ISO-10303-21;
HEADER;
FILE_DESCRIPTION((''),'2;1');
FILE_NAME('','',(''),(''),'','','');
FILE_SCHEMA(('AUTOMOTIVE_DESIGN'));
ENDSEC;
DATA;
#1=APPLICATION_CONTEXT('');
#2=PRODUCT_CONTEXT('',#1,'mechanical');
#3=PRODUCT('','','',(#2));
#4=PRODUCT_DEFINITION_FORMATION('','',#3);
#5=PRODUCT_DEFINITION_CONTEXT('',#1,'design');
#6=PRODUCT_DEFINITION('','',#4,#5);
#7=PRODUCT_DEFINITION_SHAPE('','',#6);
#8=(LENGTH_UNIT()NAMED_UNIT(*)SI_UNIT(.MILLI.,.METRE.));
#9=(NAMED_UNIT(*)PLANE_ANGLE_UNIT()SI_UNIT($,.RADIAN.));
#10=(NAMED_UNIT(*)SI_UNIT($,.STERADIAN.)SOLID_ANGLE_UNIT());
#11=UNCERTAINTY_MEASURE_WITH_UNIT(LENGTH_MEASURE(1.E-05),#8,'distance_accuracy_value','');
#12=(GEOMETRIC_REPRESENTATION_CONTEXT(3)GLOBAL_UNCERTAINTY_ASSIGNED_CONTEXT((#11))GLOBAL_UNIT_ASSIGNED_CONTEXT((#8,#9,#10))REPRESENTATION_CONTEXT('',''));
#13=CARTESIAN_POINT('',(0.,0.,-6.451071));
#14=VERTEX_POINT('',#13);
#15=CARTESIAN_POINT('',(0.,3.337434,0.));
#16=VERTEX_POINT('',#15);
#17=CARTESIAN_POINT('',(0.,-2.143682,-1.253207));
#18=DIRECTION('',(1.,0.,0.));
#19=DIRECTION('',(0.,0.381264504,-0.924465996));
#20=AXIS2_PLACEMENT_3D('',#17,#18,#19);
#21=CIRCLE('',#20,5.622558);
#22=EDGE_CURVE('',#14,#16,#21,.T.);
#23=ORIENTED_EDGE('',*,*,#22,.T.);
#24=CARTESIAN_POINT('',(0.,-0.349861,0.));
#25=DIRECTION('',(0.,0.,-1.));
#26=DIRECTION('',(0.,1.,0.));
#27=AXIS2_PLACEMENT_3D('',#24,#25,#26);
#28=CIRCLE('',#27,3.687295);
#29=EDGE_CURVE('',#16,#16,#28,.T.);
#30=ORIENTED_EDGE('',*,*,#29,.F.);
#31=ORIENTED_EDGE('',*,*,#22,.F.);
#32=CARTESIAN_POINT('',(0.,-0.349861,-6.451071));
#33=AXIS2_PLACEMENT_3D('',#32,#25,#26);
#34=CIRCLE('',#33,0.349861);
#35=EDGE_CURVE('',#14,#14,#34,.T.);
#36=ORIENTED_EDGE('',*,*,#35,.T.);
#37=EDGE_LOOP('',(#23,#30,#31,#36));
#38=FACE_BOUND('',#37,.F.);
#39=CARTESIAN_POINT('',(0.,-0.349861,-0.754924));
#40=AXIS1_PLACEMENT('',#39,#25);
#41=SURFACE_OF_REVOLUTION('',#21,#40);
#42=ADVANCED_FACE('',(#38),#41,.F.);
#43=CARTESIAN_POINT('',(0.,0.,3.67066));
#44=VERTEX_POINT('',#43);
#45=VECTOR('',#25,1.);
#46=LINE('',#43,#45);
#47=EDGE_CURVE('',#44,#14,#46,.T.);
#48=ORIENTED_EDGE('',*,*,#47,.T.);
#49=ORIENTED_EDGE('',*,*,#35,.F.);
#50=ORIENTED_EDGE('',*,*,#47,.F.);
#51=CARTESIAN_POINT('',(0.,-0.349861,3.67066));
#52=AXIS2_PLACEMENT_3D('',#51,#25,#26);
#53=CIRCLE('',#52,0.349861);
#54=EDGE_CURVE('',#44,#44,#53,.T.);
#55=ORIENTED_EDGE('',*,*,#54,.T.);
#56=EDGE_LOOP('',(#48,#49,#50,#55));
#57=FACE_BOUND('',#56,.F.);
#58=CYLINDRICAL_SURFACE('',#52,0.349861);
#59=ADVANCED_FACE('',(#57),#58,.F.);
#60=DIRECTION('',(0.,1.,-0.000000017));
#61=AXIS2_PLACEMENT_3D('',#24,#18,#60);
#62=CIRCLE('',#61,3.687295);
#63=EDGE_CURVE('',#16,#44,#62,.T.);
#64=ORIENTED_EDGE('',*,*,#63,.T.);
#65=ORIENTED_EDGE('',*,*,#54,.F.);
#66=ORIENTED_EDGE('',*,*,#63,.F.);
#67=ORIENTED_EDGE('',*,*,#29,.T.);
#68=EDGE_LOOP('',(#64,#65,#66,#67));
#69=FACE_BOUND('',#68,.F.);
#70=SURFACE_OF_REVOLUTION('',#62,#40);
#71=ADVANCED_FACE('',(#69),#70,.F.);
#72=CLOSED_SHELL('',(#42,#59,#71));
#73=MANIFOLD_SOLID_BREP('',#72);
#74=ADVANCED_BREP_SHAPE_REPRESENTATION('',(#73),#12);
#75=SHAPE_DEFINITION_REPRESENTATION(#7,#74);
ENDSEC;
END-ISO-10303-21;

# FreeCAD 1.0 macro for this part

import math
import FreeCAD as App
import Part
import Sketcher

V = App.Vector
Q = App.Units.Quantity

doc = App.newDocument("Part")
body = doc.addObject("PartDesign::Body", "Body")

# Sketch on YZ plane
sketch1 = body.newObject("Sketcher::SketchObject", "Sketch")
sketch1.AttachmentSupport = (doc.getObject("YZ_Plane"), [""])
sketch1.MapMode = "FlatFace"
sketch1.addGeometry(Part.ArcOfCircle(Part.Circle(V(-2.1, -1.3, 0), V(0, 0, 1), 5.6), math.radians(-68), math.radians(13)), False)
sketch1.addGeometry(Part.ArcOfCircle(Part.Circle(V(-0.3, 0, 0), V(0, 0, 1), 3.7), math.radians(0), math.radians(85)), False)
sketch1.addGeometry(Part.LineSegment(V(0, 3.7, 0), V(0, -6.5, 0)), False)
sketch1.addGeometry(Part.LineSegment(V(-0.3, 3.7, 0), V(-0.3, -6.5, 0)), True)  # axis
sketch1.addConstraint(Sketcher.Constraint("Coincident", 0, 2, 1, 1))
sketch1.addConstraint(Sketcher.Constraint("Coincident", 1, 2, 2, 1))
sketch1.addConstraint(Sketcher.Constraint("Coincident", 2, 2, 0, 1))
sketch1.addConstraint(Sketcher.Constraint("Vertical", 2))
sketch1.addConstraint(Sketcher.Constraint("Vertical", 3))
sketch1.addConstraint(Sketcher.Constraint("PointOnObject", 1, 3, -1))
sketch1.addConstraint(Sketcher.Constraint("PointOnObject", 0, 2, -1))
sketch1.addConstraint(Sketcher.Constraint("PointOnObject", 1, 2, -2))
sketch1.addConstraint(Sketcher.Constraint("Horizontal", 1, 2, 3, 1))
sketch1.addConstraint(Sketcher.Constraint("Horizontal", 2, 2, 3, 2))
sketch1.addConstraint(Sketcher.Constraint("Vertical", 1, 3, 3, 1))
sketch1.addConstraint(Sketcher.Constraint("Radius", 0, Q("5.622558 mm")))
sketch1.addConstraint(Sketcher.Constraint("Radius", 1, Q("3.687295 mm")))
sketch1.addConstraint(Sketcher.Constraint("DistanceY", 2, 2, 2, 1, Q("10.121731 mm")))
sketch1.addConstraint(Sketcher.Constraint("DistanceX", 0, 3, -1, 1, Q("2.143682 mm")))
revolution = body.newObject("PartDesign::Revolution", "Revolution")
revolution.Profile = sketch1
revolution.ReferenceAxis = (sketch1, ["Axis0"])
revolution.Angle = 360

doc.recompute()
